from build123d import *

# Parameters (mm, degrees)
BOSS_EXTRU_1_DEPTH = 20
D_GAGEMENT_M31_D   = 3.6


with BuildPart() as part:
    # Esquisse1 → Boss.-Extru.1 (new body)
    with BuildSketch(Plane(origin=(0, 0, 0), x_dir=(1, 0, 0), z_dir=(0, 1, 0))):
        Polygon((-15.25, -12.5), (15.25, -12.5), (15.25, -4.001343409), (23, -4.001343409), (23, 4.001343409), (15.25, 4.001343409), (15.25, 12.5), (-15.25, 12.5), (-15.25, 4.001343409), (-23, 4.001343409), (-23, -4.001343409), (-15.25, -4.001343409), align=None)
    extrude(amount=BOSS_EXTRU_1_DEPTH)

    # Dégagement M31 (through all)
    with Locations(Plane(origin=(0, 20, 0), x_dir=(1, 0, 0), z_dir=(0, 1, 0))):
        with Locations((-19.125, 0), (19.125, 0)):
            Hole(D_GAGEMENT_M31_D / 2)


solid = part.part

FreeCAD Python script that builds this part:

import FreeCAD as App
import Part
import Sketcher
from FreeCAD import Vector

doc = App.newDocument("Part")
params = doc.addObject("Spreadsheet::Sheet", "Params")
for row, (alias, value) in enumerate([
    ("sketch1_width", "30.5 mm"),
    ("pad1_length", "20 mm"),
    ("sketch2_diameter", "3.6 mm"),
    ("hole_diameter", "3.6 mm"),
], start=1):
    params.set(f"A{row}", alias)
    params.set(f"B{row}", "=" + value)
    params.setAlias(f"B{row}", alias)

body = doc.addObject("PartDesign::Body", "Body")

# Sketch on XZ plane
sketch1 = body.newObject("Sketcher::SketchObject", "Sketch")
sketch1.AttachmentSupport = (doc.getObject("XZ_Plane"), [""])
sketch1.MapMode = "FlatFace"
sketch1.addGeometry([
    Part.LineSegment(Vector(-15.25, 12.5, 0), Vector(15.25, 12.5, 0)),  # 0
    Part.LineSegment(Vector(15.25, 12.5, 0), Vector(15.25, 4.001343, 0)),  # 1
    Part.LineSegment(Vector(15.25, 4.001343, 0), Vector(23, 4.001343, 0)),  # 2
    Part.LineSegment(Vector(23, 4.001343, 0), Vector(23, -4.001343, 0)),  # 3
    Part.LineSegment(Vector(23, -4.001343, 0), Vector(15.25, -4.001343, 0)),  # 4
    Part.LineSegment(Vector(15.25, -4.001343, 0), Vector(15.25, -12.5, 0)),  # 5
    Part.LineSegment(Vector(15.25, -12.5, 0), Vector(-15.25, -12.5, 0)),  # 6
    Part.LineSegment(Vector(-15.25, -12.5, 0), Vector(-15.25, -4.001343, 0)),  # 7
    Part.LineSegment(Vector(-15.25, -4.001343, 0), Vector(-23, -4.001343, 0)),  # 8
    Part.LineSegment(Vector(-23, -4.001343, 0), Vector(-23, 4.001343, 0)),  # 9
    Part.LineSegment(Vector(-23, 4.001343, 0), Vector(-15.25, 4.001343, 0)),  # 10
    Part.LineSegment(Vector(-15.25, 4.001343, 0), Vector(-15.25, 12.5, 0)),  # 11
], False)
sketch1.addConstraint([
    Sketcher.Constraint("Coincident", 0, 2, 1, 1),
    Sketcher.Constraint("Coincident", 1, 2, 2, 1),
    Sketcher.Constraint("Coincident", 2, 2, 3, 1),
    Sketcher.Constraint("Coincident", 3, 2, 4, 1),
    Sketcher.Constraint("Coincident", 4, 2, 5, 1),
    Sketcher.Constraint("Coincident", 5, 2, 6, 1),
    Sketcher.Constraint("Coincident", 6, 2, 7, 1),
    Sketcher.Constraint("Coincident", 7, 2, 8, 1),
    Sketcher.Constraint("Coincident", 8, 2, 9, 1),
    Sketcher.Constraint("Coincident", 9, 2, 10, 1),
    Sketcher.Constraint("Coincident", 10, 2, 11, 1),
    Sketcher.Constraint("Coincident", 11, 2, 0, 1),
    Sketcher.Constraint("Horizontal", 0),
    Sketcher.Constraint("Vertical", 1),
    Sketcher.Constraint("Horizontal", 2),
    Sketcher.Constraint("Vertical", 3),
    Sketcher.Constraint("Horizontal", 4),
    Sketcher.Constraint("Vertical", 5),
    Sketcher.Constraint("Horizontal", 6),
    Sketcher.Constraint("Vertical", 7),
    Sketcher.Constraint("Horizontal", 8),
    Sketcher.Constraint("Vertical", 9),
    Sketcher.Constraint("Horizontal", 10),
    Sketcher.Constraint("Vertical", 11),
    Sketcher.Constraint("Symmetric", 0, 2, 6, 2, -1, 1),
    Sketcher.Constraint("Symmetric", 2, 2, 8, 2, -1, 1),
    Sketcher.Constraint("Symmetric", 4, 2, 10, 2, -1, 1),
    Sketcher.Constraint("Symmetric", 4, 2, 7, 2, -2),
    Sketcher.Constraint("DistanceX", 0, 1, 0, 2, 30.5),
    Sketcher.Constraint("DistanceX", -1, 1, 2, 2, 23.0),
    Sketcher.Constraint("DistanceY", 5, 2, 0, 2, 25.0),
    Sketcher.Constraint("DistanceY", 1, 2, 1, 1, 8.498657),
])
sketch1.setExpression("Constraints[28]", "Params.sketch1_width")
pad1 = body.newObject("PartDesign::Pad", "Pad")
pad1.Profile = sketch1
pad1.setExpression("Length", "Params.pad1_length")
pad1.Reversed = True

# Sketch on XZ plane
sketch2 = body.newObject("Sketcher::SketchObject", "Sketch001")
sketch2.AttachmentSupport = (doc.getObject("XZ_Plane"), [""])
sketch2.MapMode = "FlatFace"
sketch2.AttachmentOffset = App.Placement(Vector(0, 0, -20), App.Rotation())
sketch2.addGeometry([
    Part.Circle(Vector(-19.125, 0, 0), Vector(0, 0, 1), 1.8),
    Part.Circle(Vector(19.125, 0, 0), Vector(0, 0, 1), 1.8),
], False)
sketch2.addConstraint([
    Sketcher.Constraint("Equal", 0, 1),
    Sketcher.Constraint("Symmetric", 0, 3, 1, 3, -1, 1),
    Sketcher.Constraint("PointOnObject", 0, 3, -1),
    Sketcher.Constraint("Diameter", 0, 3.6),
    Sketcher.Constraint("DistanceX", 0, 3, 1, 3, 38.25),
])
sketch2.setExpression("Constraints[3]", "Params.sketch2_diameter")
doc.recompute()
hole = body.newObject("PartDesign::Hole", "Hole")
hole.Profile = sketch2
hole.ThreadType = "None"
hole.setExpression("Diameter", "Params.hole_diameter")
hole.DepthType = "ThroughAll"
hole.Reversed = True

doc.recompute()
